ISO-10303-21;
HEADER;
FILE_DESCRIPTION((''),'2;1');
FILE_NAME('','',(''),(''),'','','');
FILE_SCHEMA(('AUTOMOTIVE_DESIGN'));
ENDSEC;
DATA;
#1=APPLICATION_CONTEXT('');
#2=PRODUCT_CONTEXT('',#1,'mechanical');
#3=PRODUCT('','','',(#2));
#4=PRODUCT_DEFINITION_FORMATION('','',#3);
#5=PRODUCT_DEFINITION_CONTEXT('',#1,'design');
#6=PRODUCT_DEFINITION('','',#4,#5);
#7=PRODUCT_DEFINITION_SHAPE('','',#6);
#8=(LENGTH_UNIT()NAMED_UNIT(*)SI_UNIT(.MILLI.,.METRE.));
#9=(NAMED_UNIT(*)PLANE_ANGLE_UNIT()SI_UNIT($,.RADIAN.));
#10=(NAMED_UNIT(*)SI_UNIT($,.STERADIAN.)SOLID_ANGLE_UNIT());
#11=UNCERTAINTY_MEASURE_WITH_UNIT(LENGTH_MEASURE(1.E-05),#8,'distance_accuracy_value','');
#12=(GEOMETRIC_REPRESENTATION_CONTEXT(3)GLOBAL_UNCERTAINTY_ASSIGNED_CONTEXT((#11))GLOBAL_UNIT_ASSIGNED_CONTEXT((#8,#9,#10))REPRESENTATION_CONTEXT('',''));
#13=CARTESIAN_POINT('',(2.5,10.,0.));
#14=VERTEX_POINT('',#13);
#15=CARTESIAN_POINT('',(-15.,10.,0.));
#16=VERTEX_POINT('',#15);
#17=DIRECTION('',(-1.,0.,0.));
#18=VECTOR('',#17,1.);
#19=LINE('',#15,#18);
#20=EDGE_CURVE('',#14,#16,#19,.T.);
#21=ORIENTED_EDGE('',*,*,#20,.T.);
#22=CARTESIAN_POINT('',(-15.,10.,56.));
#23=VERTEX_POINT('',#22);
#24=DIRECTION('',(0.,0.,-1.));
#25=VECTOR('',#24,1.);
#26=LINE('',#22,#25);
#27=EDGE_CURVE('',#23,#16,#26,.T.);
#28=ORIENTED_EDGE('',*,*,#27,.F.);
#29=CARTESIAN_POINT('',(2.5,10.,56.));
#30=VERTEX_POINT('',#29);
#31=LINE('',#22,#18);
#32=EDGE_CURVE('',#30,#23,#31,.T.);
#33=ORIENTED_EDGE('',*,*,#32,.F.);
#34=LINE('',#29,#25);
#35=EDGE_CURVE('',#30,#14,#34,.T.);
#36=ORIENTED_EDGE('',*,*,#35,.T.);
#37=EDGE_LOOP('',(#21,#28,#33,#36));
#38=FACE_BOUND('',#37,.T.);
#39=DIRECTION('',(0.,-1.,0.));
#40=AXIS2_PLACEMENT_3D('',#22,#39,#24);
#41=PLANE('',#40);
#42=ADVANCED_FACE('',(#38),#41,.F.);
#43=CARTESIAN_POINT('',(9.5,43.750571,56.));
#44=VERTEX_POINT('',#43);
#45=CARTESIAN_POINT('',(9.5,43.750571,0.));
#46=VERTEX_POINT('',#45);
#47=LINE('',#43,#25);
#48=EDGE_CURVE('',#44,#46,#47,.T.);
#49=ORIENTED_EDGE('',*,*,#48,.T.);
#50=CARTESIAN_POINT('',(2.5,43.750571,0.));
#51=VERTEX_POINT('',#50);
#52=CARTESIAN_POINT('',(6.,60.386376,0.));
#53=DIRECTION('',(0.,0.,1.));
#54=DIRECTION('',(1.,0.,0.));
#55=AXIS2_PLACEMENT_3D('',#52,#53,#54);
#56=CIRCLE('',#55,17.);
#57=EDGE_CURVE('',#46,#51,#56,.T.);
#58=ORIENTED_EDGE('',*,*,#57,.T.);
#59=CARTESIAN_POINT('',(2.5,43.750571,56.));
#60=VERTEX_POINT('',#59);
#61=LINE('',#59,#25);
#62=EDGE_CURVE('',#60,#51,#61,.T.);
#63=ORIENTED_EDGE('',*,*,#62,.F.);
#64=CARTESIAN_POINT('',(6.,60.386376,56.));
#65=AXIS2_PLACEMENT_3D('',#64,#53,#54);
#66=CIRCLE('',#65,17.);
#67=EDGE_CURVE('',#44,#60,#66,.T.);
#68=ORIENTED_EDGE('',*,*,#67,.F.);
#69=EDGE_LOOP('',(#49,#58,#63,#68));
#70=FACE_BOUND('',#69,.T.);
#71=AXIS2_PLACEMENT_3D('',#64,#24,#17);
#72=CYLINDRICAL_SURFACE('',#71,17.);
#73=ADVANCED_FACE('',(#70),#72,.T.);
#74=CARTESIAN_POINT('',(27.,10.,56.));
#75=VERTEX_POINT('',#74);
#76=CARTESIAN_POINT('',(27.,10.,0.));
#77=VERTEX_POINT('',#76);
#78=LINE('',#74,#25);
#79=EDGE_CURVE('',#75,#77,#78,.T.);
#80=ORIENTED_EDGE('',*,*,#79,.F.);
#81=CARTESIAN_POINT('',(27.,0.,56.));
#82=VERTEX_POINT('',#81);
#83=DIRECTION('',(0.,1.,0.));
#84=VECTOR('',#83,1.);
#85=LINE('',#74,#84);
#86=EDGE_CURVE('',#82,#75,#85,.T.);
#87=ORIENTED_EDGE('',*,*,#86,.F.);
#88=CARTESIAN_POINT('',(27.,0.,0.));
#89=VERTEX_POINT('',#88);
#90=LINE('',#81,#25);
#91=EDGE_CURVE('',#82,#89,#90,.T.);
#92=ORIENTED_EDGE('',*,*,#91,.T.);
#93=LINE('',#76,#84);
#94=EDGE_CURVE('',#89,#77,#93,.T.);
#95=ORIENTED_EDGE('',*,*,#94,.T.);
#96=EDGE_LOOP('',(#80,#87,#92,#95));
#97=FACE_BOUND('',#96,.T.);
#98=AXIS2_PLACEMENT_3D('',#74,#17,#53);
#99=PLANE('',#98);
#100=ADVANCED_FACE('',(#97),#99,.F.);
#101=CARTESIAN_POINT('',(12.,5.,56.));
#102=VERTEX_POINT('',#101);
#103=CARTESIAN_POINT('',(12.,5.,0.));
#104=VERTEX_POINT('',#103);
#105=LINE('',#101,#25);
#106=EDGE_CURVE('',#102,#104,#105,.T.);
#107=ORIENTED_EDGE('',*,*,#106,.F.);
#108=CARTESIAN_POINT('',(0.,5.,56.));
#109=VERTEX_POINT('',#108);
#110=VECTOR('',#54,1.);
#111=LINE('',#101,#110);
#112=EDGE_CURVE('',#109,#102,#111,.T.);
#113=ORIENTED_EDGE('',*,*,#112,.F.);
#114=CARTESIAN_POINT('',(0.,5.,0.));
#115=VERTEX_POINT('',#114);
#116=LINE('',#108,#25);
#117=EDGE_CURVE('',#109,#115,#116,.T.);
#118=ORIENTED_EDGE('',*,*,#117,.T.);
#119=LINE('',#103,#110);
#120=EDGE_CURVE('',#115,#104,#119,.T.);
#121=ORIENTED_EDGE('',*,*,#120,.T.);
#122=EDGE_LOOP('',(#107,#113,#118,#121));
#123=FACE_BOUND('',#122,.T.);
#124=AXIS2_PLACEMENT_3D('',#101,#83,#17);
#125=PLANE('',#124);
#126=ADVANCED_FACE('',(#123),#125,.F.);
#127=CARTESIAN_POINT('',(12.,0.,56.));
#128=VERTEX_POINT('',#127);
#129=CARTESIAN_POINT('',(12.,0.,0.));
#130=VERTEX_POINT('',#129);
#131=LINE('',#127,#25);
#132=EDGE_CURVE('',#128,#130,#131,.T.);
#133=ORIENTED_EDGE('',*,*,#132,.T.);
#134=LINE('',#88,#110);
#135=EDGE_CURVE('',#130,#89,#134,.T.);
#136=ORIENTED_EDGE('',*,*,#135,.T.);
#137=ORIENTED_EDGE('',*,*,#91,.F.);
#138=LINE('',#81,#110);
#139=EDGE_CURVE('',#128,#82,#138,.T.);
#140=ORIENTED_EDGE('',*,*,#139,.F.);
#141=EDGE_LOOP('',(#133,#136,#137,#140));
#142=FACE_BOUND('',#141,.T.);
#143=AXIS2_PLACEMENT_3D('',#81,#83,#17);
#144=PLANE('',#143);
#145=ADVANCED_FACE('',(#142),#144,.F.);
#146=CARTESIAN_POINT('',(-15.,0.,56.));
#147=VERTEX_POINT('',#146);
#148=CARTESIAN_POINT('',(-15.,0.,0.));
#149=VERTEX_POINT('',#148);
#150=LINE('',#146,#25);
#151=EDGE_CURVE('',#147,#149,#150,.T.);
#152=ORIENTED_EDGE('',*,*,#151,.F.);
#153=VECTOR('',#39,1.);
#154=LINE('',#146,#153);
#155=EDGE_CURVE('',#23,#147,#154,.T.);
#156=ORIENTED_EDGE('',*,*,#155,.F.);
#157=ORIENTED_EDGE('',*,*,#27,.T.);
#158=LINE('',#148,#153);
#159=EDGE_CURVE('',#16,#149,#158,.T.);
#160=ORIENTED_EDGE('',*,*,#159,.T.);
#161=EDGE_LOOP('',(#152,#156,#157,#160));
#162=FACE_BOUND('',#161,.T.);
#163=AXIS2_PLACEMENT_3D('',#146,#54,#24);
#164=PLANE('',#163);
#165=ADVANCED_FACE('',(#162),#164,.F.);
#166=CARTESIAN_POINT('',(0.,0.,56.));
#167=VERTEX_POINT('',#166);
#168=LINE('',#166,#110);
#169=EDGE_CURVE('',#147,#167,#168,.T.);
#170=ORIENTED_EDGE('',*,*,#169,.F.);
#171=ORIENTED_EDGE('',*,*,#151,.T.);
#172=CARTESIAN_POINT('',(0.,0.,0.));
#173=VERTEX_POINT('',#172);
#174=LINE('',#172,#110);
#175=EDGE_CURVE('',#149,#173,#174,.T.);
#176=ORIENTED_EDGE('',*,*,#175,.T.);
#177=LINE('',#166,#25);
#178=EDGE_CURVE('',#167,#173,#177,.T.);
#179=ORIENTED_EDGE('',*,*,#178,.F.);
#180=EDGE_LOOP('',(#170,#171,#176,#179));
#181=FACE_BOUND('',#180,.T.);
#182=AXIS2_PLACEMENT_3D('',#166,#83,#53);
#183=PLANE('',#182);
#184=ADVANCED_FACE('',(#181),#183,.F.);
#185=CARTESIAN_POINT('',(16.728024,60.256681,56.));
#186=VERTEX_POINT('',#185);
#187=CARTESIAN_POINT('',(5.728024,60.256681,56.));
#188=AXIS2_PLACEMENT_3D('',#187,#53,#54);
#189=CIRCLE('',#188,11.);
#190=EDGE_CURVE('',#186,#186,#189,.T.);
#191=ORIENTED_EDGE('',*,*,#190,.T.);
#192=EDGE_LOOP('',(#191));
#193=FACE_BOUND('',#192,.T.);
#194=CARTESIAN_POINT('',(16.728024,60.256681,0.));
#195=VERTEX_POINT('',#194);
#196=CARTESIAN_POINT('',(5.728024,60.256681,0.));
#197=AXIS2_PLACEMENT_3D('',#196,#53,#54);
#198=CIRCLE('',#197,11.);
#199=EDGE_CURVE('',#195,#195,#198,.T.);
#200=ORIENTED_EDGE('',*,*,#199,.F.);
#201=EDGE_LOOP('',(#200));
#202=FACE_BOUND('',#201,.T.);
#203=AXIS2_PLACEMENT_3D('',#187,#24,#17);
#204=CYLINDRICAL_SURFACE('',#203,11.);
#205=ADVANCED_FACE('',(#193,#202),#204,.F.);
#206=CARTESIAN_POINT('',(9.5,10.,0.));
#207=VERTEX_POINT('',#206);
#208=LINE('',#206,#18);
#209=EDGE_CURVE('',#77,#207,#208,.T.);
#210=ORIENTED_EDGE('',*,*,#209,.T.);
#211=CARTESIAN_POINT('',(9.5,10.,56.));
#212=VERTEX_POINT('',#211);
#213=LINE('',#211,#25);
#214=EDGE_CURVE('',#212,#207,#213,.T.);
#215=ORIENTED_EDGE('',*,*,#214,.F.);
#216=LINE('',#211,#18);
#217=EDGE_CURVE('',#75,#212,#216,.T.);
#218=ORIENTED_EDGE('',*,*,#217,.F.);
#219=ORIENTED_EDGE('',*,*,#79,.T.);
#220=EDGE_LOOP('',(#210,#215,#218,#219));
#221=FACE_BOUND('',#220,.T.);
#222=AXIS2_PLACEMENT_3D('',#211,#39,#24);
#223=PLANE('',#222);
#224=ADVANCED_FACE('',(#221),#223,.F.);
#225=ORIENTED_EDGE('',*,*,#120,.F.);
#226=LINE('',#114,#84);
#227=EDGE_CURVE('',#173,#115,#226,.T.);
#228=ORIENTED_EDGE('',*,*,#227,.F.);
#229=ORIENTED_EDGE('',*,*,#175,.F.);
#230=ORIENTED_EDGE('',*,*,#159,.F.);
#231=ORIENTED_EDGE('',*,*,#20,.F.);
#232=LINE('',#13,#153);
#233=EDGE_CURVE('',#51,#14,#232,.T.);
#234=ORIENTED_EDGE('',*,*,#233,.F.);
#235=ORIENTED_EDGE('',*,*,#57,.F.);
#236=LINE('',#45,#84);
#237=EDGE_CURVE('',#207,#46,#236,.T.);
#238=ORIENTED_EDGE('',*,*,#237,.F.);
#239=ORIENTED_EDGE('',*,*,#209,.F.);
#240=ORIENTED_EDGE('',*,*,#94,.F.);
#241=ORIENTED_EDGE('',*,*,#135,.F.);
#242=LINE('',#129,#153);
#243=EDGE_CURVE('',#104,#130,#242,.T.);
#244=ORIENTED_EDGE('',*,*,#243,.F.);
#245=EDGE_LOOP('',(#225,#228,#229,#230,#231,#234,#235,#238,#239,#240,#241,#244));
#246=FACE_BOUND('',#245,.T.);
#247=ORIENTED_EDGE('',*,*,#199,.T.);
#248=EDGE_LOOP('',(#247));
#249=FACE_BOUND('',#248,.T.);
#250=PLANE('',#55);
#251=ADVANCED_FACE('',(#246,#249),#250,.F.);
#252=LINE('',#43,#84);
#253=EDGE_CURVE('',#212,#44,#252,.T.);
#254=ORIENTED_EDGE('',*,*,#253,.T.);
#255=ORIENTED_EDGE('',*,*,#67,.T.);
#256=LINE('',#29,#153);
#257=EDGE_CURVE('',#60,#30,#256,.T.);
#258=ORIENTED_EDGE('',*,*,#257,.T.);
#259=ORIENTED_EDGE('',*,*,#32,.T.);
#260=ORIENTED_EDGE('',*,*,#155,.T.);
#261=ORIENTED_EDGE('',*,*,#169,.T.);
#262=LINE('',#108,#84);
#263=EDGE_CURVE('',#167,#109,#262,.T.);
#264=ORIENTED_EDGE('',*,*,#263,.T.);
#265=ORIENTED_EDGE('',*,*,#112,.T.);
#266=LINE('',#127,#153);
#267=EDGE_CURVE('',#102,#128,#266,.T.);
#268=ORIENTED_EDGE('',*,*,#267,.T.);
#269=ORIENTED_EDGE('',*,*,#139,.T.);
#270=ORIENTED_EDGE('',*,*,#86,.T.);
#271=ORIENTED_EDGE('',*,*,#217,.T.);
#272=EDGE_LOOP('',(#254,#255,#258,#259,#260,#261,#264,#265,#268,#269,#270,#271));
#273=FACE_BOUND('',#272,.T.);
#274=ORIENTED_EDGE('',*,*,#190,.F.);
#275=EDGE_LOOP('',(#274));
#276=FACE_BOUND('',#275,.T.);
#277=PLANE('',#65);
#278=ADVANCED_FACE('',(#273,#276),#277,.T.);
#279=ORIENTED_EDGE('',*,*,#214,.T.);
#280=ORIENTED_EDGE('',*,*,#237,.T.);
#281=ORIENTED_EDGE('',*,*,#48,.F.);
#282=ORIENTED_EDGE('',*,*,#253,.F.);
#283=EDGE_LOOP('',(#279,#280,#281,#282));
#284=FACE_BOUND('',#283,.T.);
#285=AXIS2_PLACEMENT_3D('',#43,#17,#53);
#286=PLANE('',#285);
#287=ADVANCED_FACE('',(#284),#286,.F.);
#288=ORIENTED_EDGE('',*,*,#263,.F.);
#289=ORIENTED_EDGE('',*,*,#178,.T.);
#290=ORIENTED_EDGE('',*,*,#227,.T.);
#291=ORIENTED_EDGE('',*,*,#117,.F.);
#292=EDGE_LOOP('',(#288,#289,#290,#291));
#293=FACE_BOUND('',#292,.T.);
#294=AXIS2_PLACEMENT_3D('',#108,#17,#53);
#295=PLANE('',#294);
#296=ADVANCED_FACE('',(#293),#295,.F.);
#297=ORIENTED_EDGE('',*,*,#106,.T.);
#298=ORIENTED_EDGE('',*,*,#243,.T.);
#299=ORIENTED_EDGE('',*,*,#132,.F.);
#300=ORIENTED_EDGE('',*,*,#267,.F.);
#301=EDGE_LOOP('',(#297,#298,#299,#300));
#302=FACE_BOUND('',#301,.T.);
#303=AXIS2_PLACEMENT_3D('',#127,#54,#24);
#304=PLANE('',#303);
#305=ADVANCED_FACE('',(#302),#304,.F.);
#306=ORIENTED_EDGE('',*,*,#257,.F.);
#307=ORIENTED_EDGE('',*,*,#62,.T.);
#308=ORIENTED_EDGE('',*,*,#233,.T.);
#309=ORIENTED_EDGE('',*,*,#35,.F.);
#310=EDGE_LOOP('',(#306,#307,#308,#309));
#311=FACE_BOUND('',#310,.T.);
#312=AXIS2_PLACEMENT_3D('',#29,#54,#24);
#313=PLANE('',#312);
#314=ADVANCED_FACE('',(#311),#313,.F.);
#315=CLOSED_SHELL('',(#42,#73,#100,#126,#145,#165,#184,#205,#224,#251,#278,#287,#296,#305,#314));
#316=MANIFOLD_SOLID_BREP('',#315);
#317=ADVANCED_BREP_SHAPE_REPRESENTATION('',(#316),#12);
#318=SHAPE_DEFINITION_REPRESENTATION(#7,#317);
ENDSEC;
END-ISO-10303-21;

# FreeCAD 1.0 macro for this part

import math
import FreeCAD as App
import Part
import Sketcher

V = App.Vector

doc = App.newDocument("Part")
params = doc.addObject("Spreadsheet::Sheet", "Params")
for row, (alias, value) in enumerate([
    ("sketch1_diameter", "22 mm"),
    ("sketch1_radius", "17 mm"),
    ("sketch1_width", "15 mm"),
    ("sketch1_width2", "12 mm"),
    ("sketch1_height", "5 mm"),
    ("pad1_length", "56 mm"),
], start=1):
    params.set(f"A{row}", alias)
    params.set(f"B{row}", "=" + value)
    params.setAlias(f"B{row}", alias)

body = doc.addObject("PartDesign::Body", "Body")

# Sketch on XY plane
sketch1 = doc.addObject("Sketcher::SketchObject", "Sketch")
body.addObject(sketch1)
sketch1.AttachmentSupport = (doc.XY_Plane, [""])
sketch1.MapMode = "FlatFace"
sketch1.addGeometry([
    Part.LineSegment(V(-15, 0, 0), V(0, 0, 0)),  # 0
    Part.LineSegment(V(0, 0, 0), V(0, 5, 0)),  # 1
    Part.LineSegment(V(0, 5, 0), V(12, 5, 0)),  # 2
    Part.LineSegment(V(12, 5, 0), V(12, 0, 0)),  # 3
    Part.LineSegment(V(12, 0, 0), V(27, 0, 0)),  # 4
    Part.LineSegment(V(27, 0, 0), V(27, 10, 0)),  # 5
    Part.LineSegment(V(27, 10, 0), V(10, 10, 0)),  # 6
    Part.LineSegment(V(10, 10, 0), V(10, 44, 0)),  # 7
    Part.ArcOfCircle(Part.Circle(V(6, 60, 0), V(0, 0, 1), 17), math.radians(-78), math.radians(258)),  # 8
    Part.LineSegment(V(2, 44, 0), V(2, 10, 0)),  # 9
    Part.LineSegment(V(2, 10, 0), V(-15, 10, 0)),  # 10
    Part.LineSegment(V(-15, 10, 0), V(-15, 0, 0)),  # 11
    Part.Circle(V(6, 60, 0), V(0, 0, 1), 11),  # 12
], False)
sketch1.addConstraint([
    Sketcher.Constraint("Coincident", 0, 2, 1, 1),
    Sketcher.Constraint("Coincident", 1, 2, 2, 1),
    Sketcher.Constraint("Coincident", 2, 2, 3, 1),
    Sketcher.Constraint("Coincident", 3, 2, 4, 1),
    Sketcher.Constraint("Coincident", 4, 2, 5, 1),
    Sketcher.Constraint("Coincident", 5, 2, 6, 1),
    Sketcher.Constraint("Coincident", 6, 2, 7, 1),
    Sketcher.Constraint("Coincident", 7, 2, 8, 1),
    Sketcher.Constraint("Coincident", 8, 2, 9, 1),
    Sketcher.Constraint("Coincident", 9, 2, 10, 1),
    Sketcher.Constraint("Coincident", 10, 2, 11, 1),
    Sketcher.Constraint("Coincident", 11, 2, 0, 1),
    Sketcher.Constraint("Horizontal", 0),
    Sketcher.Constraint("Vertical", 1),
    Sketcher.Constraint("Horizontal", 2),
    Sketcher.Constraint("Vertical", 3),
    Sketcher.Constraint("Horizontal", 4),
    Sketcher.Constraint("Vertical", 5),
    Sketcher.Constraint("Horizontal", 6),
    Sketcher.Constraint("Vertical", 7),
    Sketcher.Constraint("Vertical", 9),
    Sketcher.Constraint("Horizontal", 10),
    Sketcher.Constraint("Vertical", 11),
    Sketcher.Constraint("Coincident", 0, 2, -1, 1),
    Sketcher.Constraint("PointOnObject", 3, 2, -1),
    Sketcher.Constraint("Horizontal", 7, 2, 8, 2),
    Sketcher.Constraint("Horizontal", 6, 2, 9, 2),
    Sketcher.Constraint("Equal", 0, 4),
    Sketcher.Constraint("Equal", 6, 10),
    Sketcher.Constraint("Diameter", 12, 22.0),
    Sketcher.Constraint("Radius", 8, 17.0),
    Sketcher.Constraint("DistanceX", 0, 1, 0, 2, 15.0),
    Sketcher.Constraint("DistanceX", 2, 1, 2, 2, 12.0),
    Sketcher.Constraint("DistanceY", 1, 1, 1, 2, 5.0),
    Sketcher.Constraint("DistanceY", 5, 1, 5, 2, 10.0),
    Sketcher.Constraint("DistanceX", 6, 2, 6, 1, 17.5),
    Sketcher.Constraint("DistanceY", 7, 1, 7, 2, 33.750571),
    Sketcher.Constraint("DistanceY", -1, 1, 12, 3, 60.256681),
    Sketcher.Constraint("DistanceX", -1, 1, 12, 3, 5.728024),
])
sketch1.setExpression("Constraints[29]", "Params.sketch1_diameter")
sketch1.setExpression("Constraints[30]", "Params.sketch1_radius")
sketch1.setExpression("Constraints[31]", "Params.sketch1_width")
sketch1.setExpression("Constraints[32]", "Params.sketch1_width2")
sketch1.setExpression("Constraints[33]", "Params.sketch1_height")
pad1 = doc.addObject("PartDesign::Pad", "Pad")
body.addObject(pad1)
pad1.Profile = sketch1
pad1.setExpression("Length", "Params.pad1_length")

doc.recompute()
